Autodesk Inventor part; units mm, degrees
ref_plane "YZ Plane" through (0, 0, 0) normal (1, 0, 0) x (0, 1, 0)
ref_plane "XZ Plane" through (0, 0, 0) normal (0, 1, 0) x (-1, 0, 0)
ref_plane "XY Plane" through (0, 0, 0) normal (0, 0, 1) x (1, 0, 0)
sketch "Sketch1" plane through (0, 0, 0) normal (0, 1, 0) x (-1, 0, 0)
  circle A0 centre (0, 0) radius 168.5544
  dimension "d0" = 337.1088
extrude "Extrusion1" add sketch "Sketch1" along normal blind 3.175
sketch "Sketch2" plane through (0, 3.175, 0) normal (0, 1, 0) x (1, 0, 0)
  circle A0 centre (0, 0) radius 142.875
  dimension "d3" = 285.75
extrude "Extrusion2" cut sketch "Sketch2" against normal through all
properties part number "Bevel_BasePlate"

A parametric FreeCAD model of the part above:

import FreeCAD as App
import Part
import Sketcher
Q = App.Units.Quantity

doc = App.newDocument("Part")
body = doc.addObject("PartDesign::Body", "Body")

# Sketch on XZ plane
sketch1 = body.newObject("Sketcher::SketchObject", "Sketch")
sketch1.AttachmentSupport = (doc.getObject("XZ_Plane"), [""])
sketch1.MapMode = "FlatFace"
sketch1.addGeometry(Part.Circle(App.Vector(0, 0, 0), App.Vector(0, 0, 1), 169), False)
sketch1.addConstraint([
    Sketcher.Constraint("Coincident", 0, 3, -1, 1),
    Sketcher.Constraint("Diameter", 0, Q("13.272 in")),
])
pad1 = body.newObject("PartDesign::Pad", "Pad")
pad1.Profile = sketch1
pad1.Length = Q("0.125 in")
pad1.Reversed = True

# Sketch on XZ plane
sketch2 = body.newObject("Sketcher::SketchObject", "Sketch001")
sketch2.AttachmentSupport = (doc.getObject("XZ_Plane"), [""])
sketch2.MapMode = "FlatFace"
sketch2.AttachmentOffset = App.Placement(App.Vector(0, 0, -0.125 * 25.4), App.Rotation())
sketch2.addGeometry(Part.Circle(App.Vector(0, 0, 0), App.Vector(0, 0, 1), 143), False)
sketch2.addConstraint([
    Sketcher.Constraint("Coincident", 0, 3, -1, 1),
    Sketcher.Constraint("Diameter", 0, Q("11.25 in")),
])
pocket1 = body.newObject("PartDesign::Pocket", "Pocket")
pocket1.Profile = sketch2
pocket1.Type = "ThroughAll"
pocket1.Reversed = True

doc.recompute()
